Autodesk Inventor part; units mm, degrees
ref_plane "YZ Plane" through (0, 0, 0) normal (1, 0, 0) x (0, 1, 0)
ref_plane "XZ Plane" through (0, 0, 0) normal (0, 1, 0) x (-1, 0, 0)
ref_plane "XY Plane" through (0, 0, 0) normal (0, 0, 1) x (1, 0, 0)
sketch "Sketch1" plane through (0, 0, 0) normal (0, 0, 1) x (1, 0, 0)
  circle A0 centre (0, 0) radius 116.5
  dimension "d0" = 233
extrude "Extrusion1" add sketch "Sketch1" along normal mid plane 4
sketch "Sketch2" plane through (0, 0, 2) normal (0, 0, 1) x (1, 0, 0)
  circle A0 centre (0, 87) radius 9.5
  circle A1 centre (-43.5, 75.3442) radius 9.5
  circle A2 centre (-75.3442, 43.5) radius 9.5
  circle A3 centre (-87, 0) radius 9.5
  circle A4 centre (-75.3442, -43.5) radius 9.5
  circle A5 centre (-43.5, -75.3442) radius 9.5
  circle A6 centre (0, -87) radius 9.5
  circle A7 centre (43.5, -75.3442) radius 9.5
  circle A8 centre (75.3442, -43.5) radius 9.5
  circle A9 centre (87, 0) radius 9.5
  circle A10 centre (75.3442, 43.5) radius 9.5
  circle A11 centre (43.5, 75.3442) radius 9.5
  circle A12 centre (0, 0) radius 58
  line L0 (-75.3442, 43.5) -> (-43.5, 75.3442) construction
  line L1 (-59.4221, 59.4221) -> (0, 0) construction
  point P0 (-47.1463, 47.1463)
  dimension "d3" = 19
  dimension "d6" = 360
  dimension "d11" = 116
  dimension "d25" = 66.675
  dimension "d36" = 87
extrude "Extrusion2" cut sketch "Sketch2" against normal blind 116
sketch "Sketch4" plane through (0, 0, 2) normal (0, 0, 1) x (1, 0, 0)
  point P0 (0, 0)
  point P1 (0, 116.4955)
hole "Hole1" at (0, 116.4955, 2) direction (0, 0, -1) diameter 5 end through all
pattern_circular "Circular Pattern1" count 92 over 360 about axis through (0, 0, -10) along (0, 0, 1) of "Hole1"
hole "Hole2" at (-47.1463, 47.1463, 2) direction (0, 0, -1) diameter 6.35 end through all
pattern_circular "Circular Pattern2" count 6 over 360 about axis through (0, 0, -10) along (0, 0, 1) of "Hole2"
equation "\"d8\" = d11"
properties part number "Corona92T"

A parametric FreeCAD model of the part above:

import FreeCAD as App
import Part
import Sketcher

doc = App.newDocument("Part")
body = doc.addObject("PartDesign::Body", "Body")

# Sketch on XY plane
sketch1 = body.newObject("Sketcher::SketchObject", "Sketch")
sketch1.AttachmentSupport = (doc.getObject("XY_Plane"), [""])
sketch1.MapMode = "FlatFace"
sketch1.addGeometry(Part.Circle(App.Vector(0, 0, 0), App.Vector(0, 0, 1), 116), False)
sketch1.addConstraint(Sketcher.Constraint("Coincident", 0, 3, -1, 1))
sketch1.addConstraint(Sketcher.Constraint("Diameter", 0, 233.0))
pad1 = body.newObject("PartDesign::Pad", "Pad")
pad1.Profile = sketch1
pad1.Length = 4
pad1.Midplane = True

# Sketch on XY plane
sketch2 = body.newObject("Sketcher::SketchObject", "Sketch001")
sketch2.AttachmentSupport = (doc.getObject("XY_Plane"), [""])
sketch2.MapMode = "FlatFace"
sketch2.AttachmentOffset = App.Placement(App.Vector(0, 0, 2), App.Rotation())
sketch2.addGeometry(Part.Circle(App.Vector(0, 87, 0), App.Vector(0, 0, 1), 10), False)
sketch2.addGeometry(Part.Circle(App.Vector(-44, 75, 0), App.Vector(0, 0, 1), 10), False)
sketch2.addGeometry(Part.Circle(App.Vector(-75, 44, 0), App.Vector(0, 0, 1), 10), False)
sketch2.addGeometry(Part.Circle(App.Vector(-87, 0, 0), App.Vector(0, 0, 1), 10), False)
sketch2.addGeometry(Part.Circle(App.Vector(-75, -44, 0), App.Vector(0, 0, 1), 10), False)
sketch2.addGeometry(Part.Circle(App.Vector(-44, -75, 0), App.Vector(0, 0, 1), 10), False)
sketch2.addGeometry(Part.Circle(App.Vector(0, -87, 0), App.Vector(0, 0, 1), 10), False)
sketch2.addGeometry(Part.Circle(App.Vector(44, -75, 0), App.Vector(0, 0, 1), 10), False)
sketch2.addGeometry(Part.Circle(App.Vector(75, -44, 0), App.Vector(0, 0, 1), 10), False)
sketch2.addGeometry(Part.Circle(App.Vector(87, 0, 0), App.Vector(0, 0, 1), 10), False)
sketch2.addGeometry(Part.Circle(App.Vector(75, 44, 0), App.Vector(0, 0, 1), 10), False)
sketch2.addGeometry(Part.Circle(App.Vector(44, 75, 0), App.Vector(0, 0, 1), 10), False)
sketch2.addGeometry(Part.Circle(App.Vector(0, 0, 0), App.Vector(0, 0, 1), 58), False)
sketch2.addConstraint(Sketcher.Constraint("Coincident", 12, 3, -1, 1))
sketch2.addConstraint(Sketcher.Constraint("Equal", 0, 1))
sketch2.addConstraint(Sketcher.Constraint("Equal", 1, 2))
sketch2.addConstraint(Sketcher.Constraint("Equal", 2, 3))
sketch2.addConstraint(Sketcher.Constraint("Equal", 3, 4))
sketch2.addConstraint(Sketcher.Constraint("Equal", 4, 5))
sketch2.addConstraint(Sketcher.Constraint("Equal", 5, 6))
sketch2.addConstraint(Sketcher.Constraint("Equal", 6, 7))
sketch2.addConstraint(Sketcher.Constraint("Equal", 7, 8))
sketch2.addConstraint(Sketcher.Constraint("Equal", 8, 9))
sketch2.addConstraint(Sketcher.Constraint("Equal", 9, 10))
sketch2.addConstraint(Sketcher.Constraint("Equal", 10, 11))
sketch2.addConstraint(Sketcher.Constraint("Symmetric", 0, 3, 6, 3, -1, 1))
sketch2.addConstraint(Sketcher.Constraint("Symmetric", 1, 3, 7, 3, -1, 1))
sketch2.addConstraint(Sketcher.Constraint("Symmetric", 2, 3, 8, 3, -1, 1))
sketch2.addConstraint(Sketcher.Constraint("Symmetric", 3, 3, 9, 3, -1, 1))
sketch2.addConstraint(Sketcher.Constraint("Symmetric", 4, 3, 10, 3, -1, 1))
sketch2.addConstraint(Sketcher.Constraint("Symmetric", 5, 3, 11, 3, -1, 1))
sketch2.addConstraint(Sketcher.Constraint("Symmetric", 5, 3, 7, 3, -2))
sketch2.addConstraint(Sketcher.Constraint("Symmetric", 4, 3, 8, 3, -2))
sketch2.addConstraint(Sketcher.Constraint("PointOnObject", 0, 3, -2))
sketch2.addConstraint(Sketcher.Constraint("PointOnObject", 3, 3, -1))
sketch2.addConstraint(Sketcher.Constraint("Diameter", 0, 19.0))
sketch2.addConstraint(Sketcher.Constraint("Diameter", 12, 116.0))
sketch2.addConstraint(Sketcher.Constraint("DistanceY", -1, 1, 0, 3, 87.0))
sketch2.addConstraint(Sketcher.Constraint("DistanceX", 3, 3, -1, 1, 87.0))
sketch2.addConstraint(Sketcher.Constraint("DistanceY", 4, 3, 2, 3, 87.0))
sketch2.addConstraint(Sketcher.Constraint("DistanceX", 5, 3, 7, 3, 87.0))
sketch2.addConstraint(Sketcher.Constraint("DistanceY", -1, 1, 1, 3, 75.3442))
sketch2.addConstraint(Sketcher.Constraint("DistanceX", 2, 3, -1, 1, 75.3442))
pocket1 = body.newObject("PartDesign::Pocket", "Pocket")
pocket1.Profile = sketch2
pocket1.Length = 116

# Sketch on XY plane
sketch3 = body.newObject("Sketcher::SketchObject", "Sketch002")
sketch3.AttachmentSupport = (doc.getObject("XY_Plane"), [""])
sketch3.MapMode = "FlatFace"
sketch3.AttachmentOffset = App.Placement(App.Vector(0, 0, 2), App.Rotation())
sketch3.addGeometry(Part.Circle(App.Vector(0, 116.5, 0), App.Vector(0, 0, 1), 2.5), False)
sketch3.addConstraint(Sketcher.Constraint("PointOnObject", 0, 3, -2))
sketch3.addConstraint(Sketcher.Constraint("Diameter", 0, 5.0))
sketch3.addConstraint(Sketcher.Constraint("DistanceY", -1, 1, 0, 3, 116.4955))
doc.recompute()
hole = body.newObject("PartDesign::Hole", "Hole")
hole.Profile = sketch3
hole.ThreadType = "None"
hole.Diameter = 5
hole.DepthType = "ThroughAll"
doc.recompute()

polarpattern = body.newObject("PartDesign::PolarPattern", "PolarPattern")
polarpattern.Originals = [hole]
polarpattern.Axis = (doc.getObject("Z_Axis"), [""])
polarpattern.Angle = 360
polarpattern.Occurrences = 92
body.Tip = polarpattern

# Sketch on XY plane
sketch4 = body.newObject("Sketcher::SketchObject", "Sketch003")
sketch4.AttachmentSupport = (doc.getObject("XY_Plane"), [""])
sketch4.MapMode = "FlatFace"
sketch4.AttachmentOffset = App.Placement(App.Vector(0, 0, 2), App.Rotation())
sketch4.addGeometry(Part.Circle(App.Vector(-47.1, 47.1, 0), App.Vector(0, 0, 1), 3.2), False)
sketch4.addConstraint(Sketcher.Constraint("Diameter", 0, 6.35))
sketch4.addConstraint(Sketcher.Constraint("DistanceX", 0, 3, -1, 1, 47.1463))
sketch4.addConstraint(Sketcher.Constraint("DistanceY", -1, 1, 0, 3, 47.1463))
doc.recompute()
hole2 = body.newObject("PartDesign::Hole", "Hole001")
hole2.Profile = sketch4
hole2.ThreadType = "None"
hole2.Diameter = 6.35
hole2.DepthType = "ThroughAll"
doc.recompute()

polarpattern2 = body.newObject("PartDesign::PolarPattern", "PolarPattern001")
polarpattern2.Originals = [hole2]
polarpattern2.Axis = (doc.getObject("Z_Axis"), [""])
polarpattern2.Angle = 360
polarpattern2.Occurrences = 6
body.Tip = polarpattern2

doc.recompute()
